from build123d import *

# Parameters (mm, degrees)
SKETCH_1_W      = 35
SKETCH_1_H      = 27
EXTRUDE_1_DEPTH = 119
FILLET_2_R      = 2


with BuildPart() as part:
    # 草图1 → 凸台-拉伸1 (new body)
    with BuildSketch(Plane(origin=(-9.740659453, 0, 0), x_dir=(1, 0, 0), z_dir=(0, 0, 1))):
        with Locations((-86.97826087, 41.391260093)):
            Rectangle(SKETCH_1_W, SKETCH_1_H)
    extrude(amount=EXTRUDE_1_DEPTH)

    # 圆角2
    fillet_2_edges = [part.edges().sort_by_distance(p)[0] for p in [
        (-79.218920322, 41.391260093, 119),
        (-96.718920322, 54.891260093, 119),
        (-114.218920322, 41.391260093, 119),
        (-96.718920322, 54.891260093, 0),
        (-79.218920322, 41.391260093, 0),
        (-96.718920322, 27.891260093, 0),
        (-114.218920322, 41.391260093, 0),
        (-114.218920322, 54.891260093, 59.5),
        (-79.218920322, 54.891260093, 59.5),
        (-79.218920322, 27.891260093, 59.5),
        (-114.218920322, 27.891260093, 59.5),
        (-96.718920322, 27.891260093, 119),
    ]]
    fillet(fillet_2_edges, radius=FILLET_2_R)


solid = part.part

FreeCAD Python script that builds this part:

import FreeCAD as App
import Part
import Sketcher
from FreeCAD import Vector

doc = App.newDocument("Part")
body = doc.addObject("PartDesign::Body", "Body")

# Sketch on XY plane
sketch1 = body.newObject("Sketcher::SketchObject", "Sketch")
sketch1.AttachmentSupport = (doc.getObject("XY_Plane"), [""])
sketch1.MapMode = "FlatFace"
sketch1.addGeometry(Part.LineSegment(Vector(-114, 55, 0), Vector(-114, 28, 0)), False)
sketch1.addGeometry(Part.LineSegment(Vector(-114, 28, 0), Vector(-79, 28, 0)), False)
sketch1.addGeometry(Part.LineSegment(Vector(-79, 28, 0), Vector(-79, 55, 0)), False)
sketch1.addGeometry(Part.LineSegment(Vector(-79, 55, 0), Vector(-114, 55, 0)), False)
sketch1.addConstraint(Sketcher.Constraint("Coincident", 0, 2, 1, 1))
sketch1.addConstraint(Sketcher.Constraint("Coincident", 1, 2, 2, 1))
sketch1.addConstraint(Sketcher.Constraint("Coincident", 2, 2, 3, 1))
sketch1.addConstraint(Sketcher.Constraint("Coincident", 3, 2, 0, 1))
sketch1.addConstraint(Sketcher.Constraint("Vertical", 0))
sketch1.addConstraint(Sketcher.Constraint("Horizontal", 1))
sketch1.addConstraint(Sketcher.Constraint("Vertical", 2))
sketch1.addConstraint(Sketcher.Constraint("Horizontal", 3))
sketch1.addConstraint(Sketcher.Constraint("DistanceX", 1, 1, 1, 2, 35.0))
sketch1.addConstraint(Sketcher.Constraint("DistanceY", 0, 2, 0, 1, 27.0))
sketch1.addConstraint(Sketcher.Constraint("DistanceX", 0, 2, -1, 1, 114.21892))
sketch1.addConstraint(Sketcher.Constraint("DistanceY", -1, 1, 0, 2, 27.89126))
pad1 = body.newObject("PartDesign::Pad", "Pad")
pad1.Profile = sketch1
pad1.Length = 119
doc.recompute()

fillet = body.newObject("PartDesign::Fillet", "Fillet")
fillet.Base = (pad1, ["Edge1"])
fillet.UseAllEdges = True
fillet.Radius = 2

doc.recompute()
